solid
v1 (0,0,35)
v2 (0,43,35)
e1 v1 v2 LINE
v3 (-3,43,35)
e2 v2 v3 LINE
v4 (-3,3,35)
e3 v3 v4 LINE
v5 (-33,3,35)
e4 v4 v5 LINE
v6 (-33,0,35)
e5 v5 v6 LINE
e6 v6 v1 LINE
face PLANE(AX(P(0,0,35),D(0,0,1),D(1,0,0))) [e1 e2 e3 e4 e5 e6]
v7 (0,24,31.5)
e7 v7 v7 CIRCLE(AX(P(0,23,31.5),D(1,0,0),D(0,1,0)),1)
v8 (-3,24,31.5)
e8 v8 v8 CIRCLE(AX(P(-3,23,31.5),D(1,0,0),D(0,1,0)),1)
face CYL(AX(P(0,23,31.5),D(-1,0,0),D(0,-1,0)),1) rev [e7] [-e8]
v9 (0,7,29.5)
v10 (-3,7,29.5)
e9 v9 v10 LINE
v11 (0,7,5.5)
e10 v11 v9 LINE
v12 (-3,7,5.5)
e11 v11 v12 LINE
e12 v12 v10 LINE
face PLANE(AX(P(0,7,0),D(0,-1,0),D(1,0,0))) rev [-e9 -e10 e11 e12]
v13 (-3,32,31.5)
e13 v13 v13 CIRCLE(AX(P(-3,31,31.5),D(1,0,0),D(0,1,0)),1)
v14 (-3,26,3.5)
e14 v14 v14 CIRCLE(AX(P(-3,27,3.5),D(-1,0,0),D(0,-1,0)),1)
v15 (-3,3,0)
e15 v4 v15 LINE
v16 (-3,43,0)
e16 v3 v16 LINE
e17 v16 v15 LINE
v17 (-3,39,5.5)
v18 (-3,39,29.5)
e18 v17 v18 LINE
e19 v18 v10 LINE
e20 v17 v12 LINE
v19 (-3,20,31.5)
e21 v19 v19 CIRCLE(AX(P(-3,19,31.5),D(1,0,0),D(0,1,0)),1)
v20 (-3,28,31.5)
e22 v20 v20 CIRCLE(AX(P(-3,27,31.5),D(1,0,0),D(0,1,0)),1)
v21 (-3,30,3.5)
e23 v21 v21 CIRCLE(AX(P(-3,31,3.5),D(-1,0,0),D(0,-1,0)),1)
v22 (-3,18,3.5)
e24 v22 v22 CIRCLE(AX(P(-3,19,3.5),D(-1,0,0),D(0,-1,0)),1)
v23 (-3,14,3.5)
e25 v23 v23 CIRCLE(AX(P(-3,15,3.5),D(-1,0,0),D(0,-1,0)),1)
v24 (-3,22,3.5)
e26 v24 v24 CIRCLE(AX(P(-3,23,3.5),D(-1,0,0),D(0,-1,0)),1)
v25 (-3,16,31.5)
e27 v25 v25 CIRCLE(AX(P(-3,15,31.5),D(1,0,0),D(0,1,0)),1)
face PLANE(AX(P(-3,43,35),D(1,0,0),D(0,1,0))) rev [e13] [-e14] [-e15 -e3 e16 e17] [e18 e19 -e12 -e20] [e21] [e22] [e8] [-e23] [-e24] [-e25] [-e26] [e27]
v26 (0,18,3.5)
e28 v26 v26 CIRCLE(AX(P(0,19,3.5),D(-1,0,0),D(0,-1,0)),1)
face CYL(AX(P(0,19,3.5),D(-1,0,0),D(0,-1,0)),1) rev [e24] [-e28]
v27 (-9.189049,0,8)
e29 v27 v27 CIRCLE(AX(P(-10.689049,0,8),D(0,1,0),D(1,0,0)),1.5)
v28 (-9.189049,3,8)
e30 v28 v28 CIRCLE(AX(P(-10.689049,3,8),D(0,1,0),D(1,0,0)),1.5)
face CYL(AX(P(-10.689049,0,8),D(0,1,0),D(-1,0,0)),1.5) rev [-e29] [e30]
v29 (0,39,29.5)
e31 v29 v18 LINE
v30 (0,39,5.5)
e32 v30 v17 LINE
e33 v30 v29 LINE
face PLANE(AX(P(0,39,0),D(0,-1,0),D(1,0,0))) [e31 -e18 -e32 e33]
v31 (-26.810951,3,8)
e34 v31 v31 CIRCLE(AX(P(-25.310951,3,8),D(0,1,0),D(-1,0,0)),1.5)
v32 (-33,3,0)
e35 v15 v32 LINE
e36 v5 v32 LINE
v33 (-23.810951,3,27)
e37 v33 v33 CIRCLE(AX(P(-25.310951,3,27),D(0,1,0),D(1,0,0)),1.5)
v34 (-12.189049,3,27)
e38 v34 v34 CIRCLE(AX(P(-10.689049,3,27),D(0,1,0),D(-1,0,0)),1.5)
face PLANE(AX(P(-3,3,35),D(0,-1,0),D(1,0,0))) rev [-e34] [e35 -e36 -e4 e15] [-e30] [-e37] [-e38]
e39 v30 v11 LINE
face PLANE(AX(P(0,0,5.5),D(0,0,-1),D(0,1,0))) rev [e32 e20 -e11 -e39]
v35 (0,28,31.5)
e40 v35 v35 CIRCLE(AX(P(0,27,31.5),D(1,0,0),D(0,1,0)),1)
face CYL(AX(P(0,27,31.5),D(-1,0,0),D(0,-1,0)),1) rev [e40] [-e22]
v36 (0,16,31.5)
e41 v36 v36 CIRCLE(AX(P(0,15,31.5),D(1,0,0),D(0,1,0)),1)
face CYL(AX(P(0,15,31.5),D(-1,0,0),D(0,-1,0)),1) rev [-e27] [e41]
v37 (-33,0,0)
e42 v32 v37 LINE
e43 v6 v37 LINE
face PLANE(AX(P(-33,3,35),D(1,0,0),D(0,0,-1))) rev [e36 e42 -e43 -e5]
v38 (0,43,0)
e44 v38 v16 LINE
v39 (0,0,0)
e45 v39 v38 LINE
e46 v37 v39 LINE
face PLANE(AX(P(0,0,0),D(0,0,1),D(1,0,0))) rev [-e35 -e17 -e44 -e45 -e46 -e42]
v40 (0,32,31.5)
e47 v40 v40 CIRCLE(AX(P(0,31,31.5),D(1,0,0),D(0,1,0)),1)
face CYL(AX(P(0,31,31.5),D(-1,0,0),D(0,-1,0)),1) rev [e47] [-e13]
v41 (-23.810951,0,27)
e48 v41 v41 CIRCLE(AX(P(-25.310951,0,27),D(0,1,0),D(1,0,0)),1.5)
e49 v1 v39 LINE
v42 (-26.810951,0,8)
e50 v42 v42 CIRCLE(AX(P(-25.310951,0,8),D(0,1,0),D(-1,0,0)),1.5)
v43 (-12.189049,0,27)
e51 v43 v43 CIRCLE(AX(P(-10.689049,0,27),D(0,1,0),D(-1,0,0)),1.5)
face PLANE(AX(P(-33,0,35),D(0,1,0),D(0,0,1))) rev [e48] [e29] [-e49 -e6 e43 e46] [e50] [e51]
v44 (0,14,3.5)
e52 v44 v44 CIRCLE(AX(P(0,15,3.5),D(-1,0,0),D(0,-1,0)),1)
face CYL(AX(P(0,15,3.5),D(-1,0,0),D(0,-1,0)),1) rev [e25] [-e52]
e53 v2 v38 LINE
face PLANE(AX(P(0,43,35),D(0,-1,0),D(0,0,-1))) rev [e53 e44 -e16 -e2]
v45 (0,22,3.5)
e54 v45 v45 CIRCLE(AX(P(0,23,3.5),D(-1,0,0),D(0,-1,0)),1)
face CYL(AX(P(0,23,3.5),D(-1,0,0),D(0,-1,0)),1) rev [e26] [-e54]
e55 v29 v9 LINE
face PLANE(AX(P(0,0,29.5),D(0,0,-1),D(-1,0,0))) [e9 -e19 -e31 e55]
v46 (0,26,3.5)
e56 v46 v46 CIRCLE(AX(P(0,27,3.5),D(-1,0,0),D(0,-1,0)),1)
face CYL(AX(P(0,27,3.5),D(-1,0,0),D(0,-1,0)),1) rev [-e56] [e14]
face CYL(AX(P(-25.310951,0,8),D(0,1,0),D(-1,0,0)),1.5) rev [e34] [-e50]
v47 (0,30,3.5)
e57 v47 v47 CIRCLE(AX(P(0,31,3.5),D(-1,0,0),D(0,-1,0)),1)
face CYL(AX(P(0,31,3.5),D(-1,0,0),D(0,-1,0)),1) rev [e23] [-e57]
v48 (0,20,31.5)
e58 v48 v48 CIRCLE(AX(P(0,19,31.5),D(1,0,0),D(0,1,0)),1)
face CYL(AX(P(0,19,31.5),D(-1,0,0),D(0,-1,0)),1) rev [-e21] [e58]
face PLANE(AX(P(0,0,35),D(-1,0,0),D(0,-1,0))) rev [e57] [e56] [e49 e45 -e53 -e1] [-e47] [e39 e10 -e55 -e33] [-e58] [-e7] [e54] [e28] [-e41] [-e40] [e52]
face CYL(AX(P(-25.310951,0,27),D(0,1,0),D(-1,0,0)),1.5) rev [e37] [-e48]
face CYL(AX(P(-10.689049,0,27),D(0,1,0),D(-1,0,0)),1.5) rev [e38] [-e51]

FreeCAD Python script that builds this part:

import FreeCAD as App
import Part
import Sketcher
Q = App.Units.Quantity

doc = App.newDocument("Part")
body = doc.addObject("PartDesign::Body", "Body")

sketch1 = body.newObject("Sketcher::SketchObject", "Sketch")
sketch1.AttachmentSupport = (doc.getObject("XY_Plane"), [""])
sketch1.MapMode = "FlatFace"
sketch1.addGeometry([
    Part.LineSegment(App.Vector(-33, 0, 0), App.Vector(0, 0, 0)),
    Part.LineSegment(App.Vector(0, 0, 0), App.Vector(0, 43, 0)),
    Part.LineSegment(App.Vector(0, 43, 0), App.Vector(-3, 43, 0)),
    Part.LineSegment(App.Vector(-3, 43, 0), App.Vector(-3, 3, 0)),
    Part.LineSegment(App.Vector(-3, 3, 0), App.Vector(-33, 3, 0)),
    Part.LineSegment(App.Vector(-33, 3, 0), App.Vector(-33, 0, 0)),
], False)
sketch1.addConstraint([
    Sketcher.Constraint("Coincident", 0, 2, 1, 1),
    Sketcher.Constraint("Coincident", 1, 2, 2, 1),
    Sketcher.Constraint("Coincident", 2, 2, 3, 1),
    Sketcher.Constraint("Coincident", 3, 2, 4, 1),
    Sketcher.Constraint("Coincident", 4, 2, 5, 1),
    Sketcher.Constraint("Coincident", 5, 2, 0, 1),
    Sketcher.Constraint("Horizontal", 0),
    Sketcher.Constraint("Vertical", 1),
    Sketcher.Constraint("Horizontal", 2),
    Sketcher.Constraint("Vertical", 3),
    Sketcher.Constraint("Horizontal", 4),
    Sketcher.Constraint("Vertical", 5),
    Sketcher.Constraint("Coincident", 0, 2, -1, 1),
    Sketcher.Constraint("Equal", 2, 5),
    Sketcher.Constraint("DistanceX", 0, 1, 0, 2, Q("33 mm")),
    Sketcher.Constraint("DistanceX", 2, 2, 2, 1, Q("3 mm")),
    Sketcher.Constraint("DistanceY", 1, 1, 1, 2, Q("43 mm")),
])
pad1 = body.newObject("PartDesign::Pad", "Pad")
pad1.Profile = sketch1
pad1.Length = 35

sketch2 = body.newObject("Sketcher::SketchObject", "Sketch001")
sketch2.AttachmentSupport = (doc.getObject("YZ_Plane"), [""])
sketch2.MapMode = "FlatFace"
sketch2.AttachmentOffset = App.Placement(App.Vector(0, 0, -3), App.Rotation())
sketch2.addGeometry([
    Part.LineSegment(App.Vector(39, 5.5, 0), App.Vector(7, 5.5, 0)),
    Part.LineSegment(App.Vector(7, 5.5, 0), App.Vector(7, 29.5, 0)),
    Part.LineSegment(App.Vector(7, 29.5, 0), App.Vector(39, 29.5, 0)),
    Part.LineSegment(App.Vector(39, 29.5, 0), App.Vector(39, 5.5, 0)),
    Part.Circle(App.Vector(31, 3.5, 0), App.Vector(0, 0, 1), 1),
    Part.Circle(App.Vector(27, 3.5, 0), App.Vector(0, 0, 1), 1),
    Part.Circle(App.Vector(23, 3.5, 0), App.Vector(0, 0, 1), 1),
    Part.Circle(App.Vector(19, 3.5, 0), App.Vector(0, 0, 1), 1),
    Part.Circle(App.Vector(15, 3.5, 0), App.Vector(0, 0, 1), 1),
    Part.Circle(App.Vector(15, 31.5, 0), App.Vector(0, 0, 1), 1),
    Part.Circle(App.Vector(19, 31.5, 0), App.Vector(0, 0, 1), 1),
    Part.Circle(App.Vector(23, 31.5, 0), App.Vector(0, 0, 1), 1),
    Part.Circle(App.Vector(27, 31.5, 0), App.Vector(0, 0, 1), 1),
    Part.Circle(App.Vector(31, 31.5, 0), App.Vector(0, 0, 1), 1),
], False)
sketch2.addConstraint([
    Sketcher.Constraint("Coincident", 0, 2, 1, 1),
    Sketcher.Constraint("Coincident", 1, 2, 2, 1),
    Sketcher.Constraint("Coincident", 2, 2, 3, 1),
    Sketcher.Constraint("Coincident", 3, 2, 0, 1),
    Sketcher.Constraint("Horizontal", 0),
    Sketcher.Constraint("Vertical", 1),
    Sketcher.Constraint("Horizontal", 2),
    Sketcher.Constraint("Vertical", 3),
    Sketcher.Constraint("Equal", 4, 5),
    Sketcher.Constraint("Equal", 5, 6),
    Sketcher.Constraint("Equal", 6, 7),
    Sketcher.Constraint("Equal", 7, 8),
    Sketcher.Constraint("Equal", 8, 9),
    Sketcher.Constraint("Equal", 9, 10),
    Sketcher.Constraint("Equal", 10, 11),
    Sketcher.Constraint("Equal", 11, 12),
    Sketcher.Constraint("Equal", 12, 13),
    Sketcher.Constraint("Horizontal", 4, 3, 5, 3),
    Sketcher.Constraint("Horizontal", 5, 3, 6, 3),
    Sketcher.Constraint("Horizontal", 6, 3, 7, 3),
    Sketcher.Constraint("Horizontal", 7, 3, 8, 3),
    Sketcher.Constraint("Horizontal", 9, 3, 10, 3),
    Sketcher.Constraint("Horizontal", 10, 3, 11, 3),
    Sketcher.Constraint("Horizontal", 11, 3, 12, 3),
    Sketcher.Constraint("Horizontal", 12, 3, 13, 3),
    Sketcher.Constraint("Vertical", 8, 3, 9, 3),
    Sketcher.Constraint("Vertical", 7, 3, 10, 3),
    Sketcher.Constraint("Vertical", 6, 3, 11, 3),
    Sketcher.Constraint("Vertical", 5, 3, 12, 3),
    Sketcher.Constraint("Vertical", 4, 3, 13, 3),
    Sketcher.Constraint("Diameter", 4, Q("2 mm")),
    Sketcher.Constraint("DistanceX", 0, 2, 0, 1, Q("32 mm")),
    Sketcher.Constraint("DistanceY", 1, 1, 1, 2, Q("24 mm")),
    Sketcher.Constraint("DistanceX", -1, 1, 4, 3, Q("31 mm")),
    Sketcher.Constraint("DistanceX", -1, 1, 5, 3, Q("27 mm")),
    Sketcher.Constraint("DistanceX", -1, 1, 6, 3, Q("23 mm")),
    Sketcher.Constraint("DistanceX", -1, 1, 7, 3, Q("19 mm")),
    Sketcher.Constraint("DistanceX", -1, 1, 8, 3, Q("15 mm")),
    Sketcher.Constraint("DistanceX", -1, 1, 0, 2, Q("7 mm")),
    Sketcher.Constraint("DistanceY", 8, 3, 9, 3, Q("28 mm")),
    Sketcher.Constraint("DistanceY", 8, 3, 0, 2, Q("2 mm")),
    Sketcher.Constraint("DistanceY", -1, 1, 4, 3, Q("3.5 mm")),
])
pocket1 = body.newObject("PartDesign::Pocket", "Pocket")
pocket1.Profile = sketch2
pocket1.Type = "ThroughAll"
pocket1.Reversed = True

sketch3 = body.newObject("Sketcher::SketchObject", "Sketch002")
sketch3.AttachmentSupport = (doc.getObject("XZ_Plane"), [""])
sketch3.MapMode = "FlatFace"
sketch3.AttachmentOffset = App.Placement(App.Vector(0, 0, -3), App.Rotation())
sketch3.addGeometry([
    Part.Circle(App.Vector(-25.3, 8, 0), App.Vector(0, 0, 1), 1.5),
    Part.Circle(App.Vector(-10.7, 8, 0), App.Vector(0, 0, 1), 1.5),
    Part.Circle(App.Vector(-10.7, 27, 0), App.Vector(0, 0, 1), 1.5),
    Part.Circle(App.Vector(-25.3, 27, 0), App.Vector(0, 0, 1), 1.5),
], False)
sketch3.addConstraint([
    Sketcher.Constraint("Equal", 0, 1),
    Sketcher.Constraint("Equal", 1, 2),
    Sketcher.Constraint("Equal", 2, 3),
    Sketcher.Constraint("Horizontal", 0, 3, 1, 3),
    Sketcher.Constraint("Horizontal", 2, 3, 3, 3),
    Sketcher.Constraint("Vertical", 1, 3, 2, 3),
    Sketcher.Constraint("Vertical", 0, 3, 3, 3),
    Sketcher.Constraint("Diameter", 0, Q("3 mm")),
    Sketcher.Constraint("DistanceY", -1, 1, 0, 3, Q("8 mm")),
    Sketcher.Constraint("DistanceY", -1, 1, 2, 3, Q("27 mm")),
    Sketcher.Constraint("DistanceX", 0, 3, 1, 3, Q("14.621901 mm")),
    Sketcher.Constraint("DistanceX", 0, 3, -1, 1, Q("25.310951 mm")),
])
pocket2 = body.newObject("PartDesign::Pocket", "Pocket001")
pocket2.Profile = sketch3
pocket2.Type = "ThroughAll"
pocket2.Reversed = True

doc.recompute()
